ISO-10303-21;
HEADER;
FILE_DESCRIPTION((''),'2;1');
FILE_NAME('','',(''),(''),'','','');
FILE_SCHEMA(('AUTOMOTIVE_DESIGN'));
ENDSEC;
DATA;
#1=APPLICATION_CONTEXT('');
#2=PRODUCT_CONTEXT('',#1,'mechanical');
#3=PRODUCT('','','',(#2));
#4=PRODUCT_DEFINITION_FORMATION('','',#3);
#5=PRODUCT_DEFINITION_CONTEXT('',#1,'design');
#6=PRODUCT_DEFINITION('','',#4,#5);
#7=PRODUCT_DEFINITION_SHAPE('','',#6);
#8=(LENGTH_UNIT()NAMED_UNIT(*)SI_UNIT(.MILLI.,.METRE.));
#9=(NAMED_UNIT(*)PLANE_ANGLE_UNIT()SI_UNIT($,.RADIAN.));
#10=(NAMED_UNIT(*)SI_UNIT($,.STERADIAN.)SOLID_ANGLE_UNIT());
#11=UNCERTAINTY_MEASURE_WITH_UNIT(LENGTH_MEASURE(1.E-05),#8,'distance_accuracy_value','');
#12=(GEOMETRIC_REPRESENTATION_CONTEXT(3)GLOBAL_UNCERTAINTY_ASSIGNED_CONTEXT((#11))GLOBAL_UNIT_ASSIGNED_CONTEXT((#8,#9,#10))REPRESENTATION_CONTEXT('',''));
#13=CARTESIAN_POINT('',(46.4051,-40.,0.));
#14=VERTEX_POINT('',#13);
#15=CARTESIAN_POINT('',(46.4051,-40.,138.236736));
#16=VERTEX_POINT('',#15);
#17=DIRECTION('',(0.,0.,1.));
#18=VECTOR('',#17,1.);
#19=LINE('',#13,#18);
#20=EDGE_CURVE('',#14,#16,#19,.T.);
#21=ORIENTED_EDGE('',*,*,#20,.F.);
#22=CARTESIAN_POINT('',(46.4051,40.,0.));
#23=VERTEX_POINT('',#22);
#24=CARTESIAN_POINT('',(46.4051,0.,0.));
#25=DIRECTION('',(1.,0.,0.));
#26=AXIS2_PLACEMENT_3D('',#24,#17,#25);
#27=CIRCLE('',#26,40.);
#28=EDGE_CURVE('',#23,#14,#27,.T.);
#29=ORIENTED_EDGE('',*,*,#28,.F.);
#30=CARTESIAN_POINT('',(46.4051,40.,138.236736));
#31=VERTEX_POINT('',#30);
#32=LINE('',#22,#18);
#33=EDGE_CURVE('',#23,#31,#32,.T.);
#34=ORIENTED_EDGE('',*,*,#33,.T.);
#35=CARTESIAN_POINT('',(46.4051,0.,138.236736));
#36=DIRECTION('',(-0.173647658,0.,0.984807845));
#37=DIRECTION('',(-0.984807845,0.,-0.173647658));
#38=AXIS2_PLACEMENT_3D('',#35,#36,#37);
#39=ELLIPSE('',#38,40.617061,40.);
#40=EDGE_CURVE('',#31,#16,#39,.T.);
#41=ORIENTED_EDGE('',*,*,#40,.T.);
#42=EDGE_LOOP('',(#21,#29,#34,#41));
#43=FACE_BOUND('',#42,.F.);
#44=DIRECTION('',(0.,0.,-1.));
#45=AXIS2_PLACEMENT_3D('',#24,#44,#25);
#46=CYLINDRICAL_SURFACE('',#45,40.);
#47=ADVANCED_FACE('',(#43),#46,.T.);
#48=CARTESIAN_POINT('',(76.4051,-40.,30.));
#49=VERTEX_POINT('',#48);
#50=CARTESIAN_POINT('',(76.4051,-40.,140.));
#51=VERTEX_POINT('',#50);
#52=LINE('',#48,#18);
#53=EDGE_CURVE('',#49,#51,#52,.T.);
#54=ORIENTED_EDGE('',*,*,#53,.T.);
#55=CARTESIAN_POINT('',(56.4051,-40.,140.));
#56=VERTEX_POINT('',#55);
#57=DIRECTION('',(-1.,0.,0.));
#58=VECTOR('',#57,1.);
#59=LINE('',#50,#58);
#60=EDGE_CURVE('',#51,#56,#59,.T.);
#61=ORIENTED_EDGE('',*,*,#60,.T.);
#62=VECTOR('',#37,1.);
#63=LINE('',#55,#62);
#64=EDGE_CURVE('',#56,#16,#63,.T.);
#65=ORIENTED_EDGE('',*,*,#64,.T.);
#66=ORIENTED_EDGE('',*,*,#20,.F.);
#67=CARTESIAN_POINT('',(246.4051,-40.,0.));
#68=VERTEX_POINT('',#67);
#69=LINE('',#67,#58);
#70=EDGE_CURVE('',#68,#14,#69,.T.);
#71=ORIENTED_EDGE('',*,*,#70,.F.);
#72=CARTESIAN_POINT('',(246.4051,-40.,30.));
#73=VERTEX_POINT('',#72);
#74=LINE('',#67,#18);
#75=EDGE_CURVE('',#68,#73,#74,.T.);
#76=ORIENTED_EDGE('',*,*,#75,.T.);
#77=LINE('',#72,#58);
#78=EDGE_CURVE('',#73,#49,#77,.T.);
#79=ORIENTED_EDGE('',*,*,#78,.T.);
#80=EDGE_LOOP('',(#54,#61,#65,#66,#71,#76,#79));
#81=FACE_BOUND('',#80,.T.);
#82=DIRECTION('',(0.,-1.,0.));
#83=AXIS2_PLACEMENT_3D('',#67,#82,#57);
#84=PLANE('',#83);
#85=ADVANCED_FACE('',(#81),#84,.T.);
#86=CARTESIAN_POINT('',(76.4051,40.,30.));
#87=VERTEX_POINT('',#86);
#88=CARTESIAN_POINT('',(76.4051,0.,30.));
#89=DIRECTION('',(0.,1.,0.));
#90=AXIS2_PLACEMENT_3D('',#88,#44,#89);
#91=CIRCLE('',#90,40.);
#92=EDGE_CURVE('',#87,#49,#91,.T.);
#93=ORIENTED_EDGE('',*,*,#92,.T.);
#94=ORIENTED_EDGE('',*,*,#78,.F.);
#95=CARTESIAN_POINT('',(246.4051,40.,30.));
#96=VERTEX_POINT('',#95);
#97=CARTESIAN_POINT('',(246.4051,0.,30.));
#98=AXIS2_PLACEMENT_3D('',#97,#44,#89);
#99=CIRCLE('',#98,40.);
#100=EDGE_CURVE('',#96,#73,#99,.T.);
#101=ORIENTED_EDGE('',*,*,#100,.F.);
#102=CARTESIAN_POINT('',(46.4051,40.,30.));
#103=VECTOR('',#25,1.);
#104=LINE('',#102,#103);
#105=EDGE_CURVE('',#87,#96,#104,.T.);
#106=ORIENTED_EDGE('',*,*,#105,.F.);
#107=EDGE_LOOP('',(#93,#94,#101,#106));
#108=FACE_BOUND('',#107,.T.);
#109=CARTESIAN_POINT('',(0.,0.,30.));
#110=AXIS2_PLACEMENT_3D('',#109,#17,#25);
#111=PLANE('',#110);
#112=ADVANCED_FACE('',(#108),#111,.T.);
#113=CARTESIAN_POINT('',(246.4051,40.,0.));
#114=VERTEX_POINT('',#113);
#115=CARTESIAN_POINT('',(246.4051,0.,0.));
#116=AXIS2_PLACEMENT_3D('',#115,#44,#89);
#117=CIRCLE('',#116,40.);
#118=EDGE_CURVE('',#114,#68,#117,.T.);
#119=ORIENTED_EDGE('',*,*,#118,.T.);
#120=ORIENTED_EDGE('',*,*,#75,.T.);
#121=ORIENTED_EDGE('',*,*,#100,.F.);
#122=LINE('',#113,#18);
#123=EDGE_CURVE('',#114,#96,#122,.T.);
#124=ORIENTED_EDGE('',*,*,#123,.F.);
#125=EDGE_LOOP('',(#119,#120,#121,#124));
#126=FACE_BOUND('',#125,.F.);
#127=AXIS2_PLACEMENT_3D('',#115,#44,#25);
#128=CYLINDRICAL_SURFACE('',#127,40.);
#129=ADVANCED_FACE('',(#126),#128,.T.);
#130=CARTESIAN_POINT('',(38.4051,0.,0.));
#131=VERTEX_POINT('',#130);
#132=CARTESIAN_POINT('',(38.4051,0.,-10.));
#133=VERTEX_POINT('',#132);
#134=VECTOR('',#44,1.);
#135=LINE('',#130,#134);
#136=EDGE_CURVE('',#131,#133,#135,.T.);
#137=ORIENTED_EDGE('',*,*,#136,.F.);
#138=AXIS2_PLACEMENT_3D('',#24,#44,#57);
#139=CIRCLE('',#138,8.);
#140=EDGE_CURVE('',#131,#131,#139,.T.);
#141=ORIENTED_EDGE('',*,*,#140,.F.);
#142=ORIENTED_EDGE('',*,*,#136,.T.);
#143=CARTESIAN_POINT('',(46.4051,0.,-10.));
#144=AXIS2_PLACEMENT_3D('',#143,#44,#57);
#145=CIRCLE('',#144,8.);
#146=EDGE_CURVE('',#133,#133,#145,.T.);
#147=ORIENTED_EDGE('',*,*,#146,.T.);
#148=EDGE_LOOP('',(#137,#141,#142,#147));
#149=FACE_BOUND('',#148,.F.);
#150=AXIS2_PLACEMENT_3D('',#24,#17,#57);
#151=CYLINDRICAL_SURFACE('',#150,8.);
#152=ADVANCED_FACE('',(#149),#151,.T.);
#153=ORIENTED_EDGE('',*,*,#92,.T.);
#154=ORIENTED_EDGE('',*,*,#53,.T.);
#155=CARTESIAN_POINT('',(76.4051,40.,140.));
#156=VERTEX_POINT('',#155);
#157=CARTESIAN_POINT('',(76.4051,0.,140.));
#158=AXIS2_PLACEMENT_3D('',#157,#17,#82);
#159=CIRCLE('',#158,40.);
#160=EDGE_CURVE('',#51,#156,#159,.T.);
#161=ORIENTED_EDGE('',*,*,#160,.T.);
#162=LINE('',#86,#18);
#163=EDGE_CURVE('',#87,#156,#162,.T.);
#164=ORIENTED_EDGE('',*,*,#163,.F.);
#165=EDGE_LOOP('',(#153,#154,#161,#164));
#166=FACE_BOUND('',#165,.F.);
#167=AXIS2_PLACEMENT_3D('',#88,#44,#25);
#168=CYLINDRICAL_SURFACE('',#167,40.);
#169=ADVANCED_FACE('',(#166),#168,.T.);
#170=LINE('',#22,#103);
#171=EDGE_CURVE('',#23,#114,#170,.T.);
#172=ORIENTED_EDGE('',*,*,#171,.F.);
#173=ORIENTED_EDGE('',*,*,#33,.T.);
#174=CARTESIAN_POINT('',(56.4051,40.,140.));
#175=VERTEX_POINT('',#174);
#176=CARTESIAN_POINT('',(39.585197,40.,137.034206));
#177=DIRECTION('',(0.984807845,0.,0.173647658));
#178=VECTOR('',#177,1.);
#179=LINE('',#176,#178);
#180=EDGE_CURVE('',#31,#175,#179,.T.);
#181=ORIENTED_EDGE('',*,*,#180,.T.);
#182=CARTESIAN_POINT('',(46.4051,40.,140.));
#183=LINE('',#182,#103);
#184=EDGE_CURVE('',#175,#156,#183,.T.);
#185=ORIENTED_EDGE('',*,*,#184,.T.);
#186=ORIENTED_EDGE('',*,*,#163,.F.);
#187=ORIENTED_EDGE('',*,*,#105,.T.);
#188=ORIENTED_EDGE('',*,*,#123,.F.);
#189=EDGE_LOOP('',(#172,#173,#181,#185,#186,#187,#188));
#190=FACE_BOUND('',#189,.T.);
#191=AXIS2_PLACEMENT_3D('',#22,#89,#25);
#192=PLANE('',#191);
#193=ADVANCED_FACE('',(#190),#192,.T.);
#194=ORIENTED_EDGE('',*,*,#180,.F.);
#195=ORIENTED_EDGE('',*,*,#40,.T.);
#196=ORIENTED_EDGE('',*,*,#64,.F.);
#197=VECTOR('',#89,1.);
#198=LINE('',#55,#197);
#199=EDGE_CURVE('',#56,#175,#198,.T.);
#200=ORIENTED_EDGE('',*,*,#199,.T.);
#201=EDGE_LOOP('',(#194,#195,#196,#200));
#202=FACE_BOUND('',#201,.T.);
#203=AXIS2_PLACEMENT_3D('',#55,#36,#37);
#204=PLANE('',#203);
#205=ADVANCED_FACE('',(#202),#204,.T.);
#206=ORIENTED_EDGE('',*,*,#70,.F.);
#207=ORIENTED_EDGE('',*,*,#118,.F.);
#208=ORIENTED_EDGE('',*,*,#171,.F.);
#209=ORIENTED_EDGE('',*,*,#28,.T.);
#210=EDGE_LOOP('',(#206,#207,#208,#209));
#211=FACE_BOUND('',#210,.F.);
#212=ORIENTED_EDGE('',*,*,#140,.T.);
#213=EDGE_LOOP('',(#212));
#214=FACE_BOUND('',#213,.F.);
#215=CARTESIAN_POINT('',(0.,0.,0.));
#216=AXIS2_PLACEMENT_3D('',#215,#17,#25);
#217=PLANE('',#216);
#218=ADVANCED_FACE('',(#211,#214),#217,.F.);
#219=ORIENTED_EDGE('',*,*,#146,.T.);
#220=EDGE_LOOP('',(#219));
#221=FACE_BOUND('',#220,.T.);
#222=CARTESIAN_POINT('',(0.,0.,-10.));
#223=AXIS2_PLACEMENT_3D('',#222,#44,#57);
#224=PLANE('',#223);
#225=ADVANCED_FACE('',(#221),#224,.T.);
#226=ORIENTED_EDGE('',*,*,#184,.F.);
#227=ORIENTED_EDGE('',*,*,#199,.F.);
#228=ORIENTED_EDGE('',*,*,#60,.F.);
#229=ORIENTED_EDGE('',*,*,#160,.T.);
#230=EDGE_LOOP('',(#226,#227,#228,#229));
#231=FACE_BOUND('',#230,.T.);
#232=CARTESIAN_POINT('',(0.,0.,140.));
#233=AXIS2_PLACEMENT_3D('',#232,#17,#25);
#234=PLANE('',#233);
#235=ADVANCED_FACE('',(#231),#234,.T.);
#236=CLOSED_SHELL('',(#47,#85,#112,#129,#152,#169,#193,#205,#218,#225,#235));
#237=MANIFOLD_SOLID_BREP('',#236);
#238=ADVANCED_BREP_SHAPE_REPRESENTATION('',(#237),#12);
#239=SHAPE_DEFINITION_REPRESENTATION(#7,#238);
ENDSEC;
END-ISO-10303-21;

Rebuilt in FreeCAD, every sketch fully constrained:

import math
import FreeCAD as App
import Part
import Sketcher
from FreeCAD import Vector
Q = App.Units.Quantity


def add_polygon(sketch, points):
    """Adds a closed chain of lines whose ends are joined by coincident constraints."""
    first, n = sketch.GeometryCount, len(points)
    for a, b in zip(points, points[1:] + points[:1]):
        sketch.addGeometry(Part.LineSegment(App.Vector(*a, 0), App.Vector(*b, 0)), False)
    for i in range(n):
        sketch.addConstraint(Sketcher.Constraint("Coincident", first + i, 2, first + (i + 1) % n, 1))

doc = App.newDocument("Part")
params = doc.addObject("Spreadsheet::Sheet", "Params")
for row, (alias, value) in enumerate([
    ("sketch1_radius", "40 mm"),
    ("sketch1_width", "200 mm"),
    ("pad1_length", "30 mm"),
    ("sketch2_radius", "40 mm"),
    ("sketch2_width", "30 mm"),
    ("pad2_length", "110 mm"),
    ("sketch4_diameter", "16 mm"),
    ("pad3_length", "10 mm"),
], start=1):
    params.set(f"A{row}", alias)
    params.set(f"B{row}", "=" + value)
    params.setAlias(f"B{row}", alias)

body = doc.addObject("PartDesign::Body", "Body")

# Sketch on XY plane
sketch1 = body.newObject("Sketcher::SketchObject", "Sketch")
sketch1.AttachmentSupport = (doc.getObject("XY_Plane"), [""])
sketch1.MapMode = "FlatFace"
sketch1.addGeometry([
    Part.LineSegment(Vector(246.4051, 40, 0), Vector(46.4051, 40, 0)),
    Part.ArcOfCircle(Part.Circle(Vector(46.4051, 0, 0), Vector(0, 0, 1), 40), math.radians(90), math.radians(270)),
    Part.LineSegment(Vector(46.4051, -40, 0), Vector(246.4051, -40, 0)),
    Part.ArcOfCircle(Part.Circle(Vector(246.4051, 0, 0), Vector(0, 0, 1), 40), math.radians(-90), math.radians(90)),
], False)
sketch1.addConstraint([
    Sketcher.Constraint("Tangent", 0, 2, 1, 1),
    Sketcher.Constraint("Tangent", 1, 2, 2, 1),
    Sketcher.Constraint("Tangent", 2, 2, 3, 1),
    Sketcher.Constraint("Tangent", 3, 2, 0, 1),
    Sketcher.Constraint("Horizontal", 0),
    Sketcher.Constraint("Horizontal", 2),
    Sketcher.Constraint("PointOnObject", 1, 3, -1),
    Sketcher.Constraint("Radius", 1, 40.0),
    Sketcher.Constraint("DistanceX", 0, 2, 0, 1, 200.0),
    Sketcher.Constraint("DistanceX", -1, 1, 1, 3, 46.405),
])
sketch1.setExpression("Constraints[7]", "Params.sketch1_radius")
sketch1.setExpression("Constraints[8]", "Params.sketch1_width")
pad1 = body.newObject("PartDesign::Pad", "Pad")
pad1.Profile = sketch1
pad1.setExpression("Length", "Params.pad1_length")

# Sketch on XY plane
sketch2 = body.newObject("Sketcher::SketchObject", "Sketch001")
sketch2.AttachmentSupport = (doc.getObject("XY_Plane"), [""])
sketch2.MapMode = "FlatFace"
sketch2.AttachmentOffset = App.Placement(Vector(0, 0, 30), App.Rotation())
sketch2.addGeometry([
    Part.ArcOfCircle(Part.Circle(Vector(46.4051, 0, 0), Vector(0, 0, 1), 40), math.radians(90), math.radians(270)),
    Part.LineSegment(Vector(46.4051, -40, 0), Vector(76.4051, -40, 0)),
    Part.ArcOfCircle(Part.Circle(Vector(76.4051, 0, 0), Vector(0, 0, 1), 40), math.radians(-90), math.radians(90)),
    Part.LineSegment(Vector(76.4051, 40, 0), Vector(46.4051, 40, 0)),
], False)
sketch2.addConstraint([
    Sketcher.Constraint("Tangent", 0, 2, 1, 1),
    Sketcher.Constraint("Tangent", 1, 2, 2, 1),
    Sketcher.Constraint("Tangent", 2, 2, 3, 1),
    Sketcher.Constraint("Tangent", 3, 2, 0, 1),
    Sketcher.Constraint("Horizontal", 1),
    Sketcher.Constraint("Horizontal", 3),
    Sketcher.Constraint("PointOnObject", 0, 3, -1),
    Sketcher.Constraint("Radius", 0, 40.0),
    Sketcher.Constraint("DistanceX", 1, 1, 1, 2, 30.0),
    Sketcher.Constraint("DistanceX", -1, 1, 0, 3, 46.405),
])
sketch2.setExpression("Constraints[7]", "Params.sketch2_radius")
sketch2.setExpression("Constraints[8]", "Params.sketch2_width")
pad2 = body.newObject("PartDesign::Pad", "Pad001")
pad2.Profile = sketch2
pad2.setExpression("Length", "Params.pad2_length")

# Sketch on XZ plane
sketch3 = body.newObject("Sketcher::SketchObject", "Sketch002")
sketch3.AttachmentSupport = (doc.getObject("XZ_Plane"), [""])
sketch3.MapMode = "FlatFace"
sketch3.AttachmentOffset = App.Placement(Vector(0, 0, 40), App.Rotation())
add_polygon(sketch3, [(56.4051, 140), (-35.2879, 140), (-35.2879, 123.8321)])  # lines 0-2
sketch3.addConstraint([
    Sketcher.Constraint("Horizontal", 0),
    Sketcher.Constraint("Vertical", 1),
    Sketcher.Constraint("Angle", 2, Q("10 deg")),
    Sketcher.Constraint("DistanceY", -1, 1, 0, 2, 140.0),
    Sketcher.Constraint("DistanceX", 0, 2, 0, 1, 91.693),
    Sketcher.Constraint("DistanceX", 0, 2, -1, 1, 35.288),
])
pocket1 = body.newObject("PartDesign::Pocket", "Pocket")
pocket1.Profile = sketch3
pocket1.Type = "ThroughAll"

# Sketch on XY plane
sketch4 = body.newObject("Sketcher::SketchObject", "Sketch003")
sketch4.AttachmentSupport = (doc.getObject("XY_Plane"), [""])
sketch4.MapMode = "FlatFace"
sketch4.addGeometry(Part.Circle(Vector(46.4051, 0, 0), Vector(0, 0, 1), 8), False)
sketch4.addConstraint([
    Sketcher.Constraint("PointOnObject", 0, 3, -1),
    Sketcher.Constraint("Diameter", 0, 16.0),
    Sketcher.Constraint("DistanceX", -1, 1, 0, 3, 46.405),
])
sketch4.setExpression("Constraints[1]", "Params.sketch4_diameter")
pad3 = body.newObject("PartDesign::Pad", "Pad002")
pad3.Profile = sketch4
pad3.setExpression("Length", "Params.pad3_length")
pad3.Reversed = True

doc.recompute()
